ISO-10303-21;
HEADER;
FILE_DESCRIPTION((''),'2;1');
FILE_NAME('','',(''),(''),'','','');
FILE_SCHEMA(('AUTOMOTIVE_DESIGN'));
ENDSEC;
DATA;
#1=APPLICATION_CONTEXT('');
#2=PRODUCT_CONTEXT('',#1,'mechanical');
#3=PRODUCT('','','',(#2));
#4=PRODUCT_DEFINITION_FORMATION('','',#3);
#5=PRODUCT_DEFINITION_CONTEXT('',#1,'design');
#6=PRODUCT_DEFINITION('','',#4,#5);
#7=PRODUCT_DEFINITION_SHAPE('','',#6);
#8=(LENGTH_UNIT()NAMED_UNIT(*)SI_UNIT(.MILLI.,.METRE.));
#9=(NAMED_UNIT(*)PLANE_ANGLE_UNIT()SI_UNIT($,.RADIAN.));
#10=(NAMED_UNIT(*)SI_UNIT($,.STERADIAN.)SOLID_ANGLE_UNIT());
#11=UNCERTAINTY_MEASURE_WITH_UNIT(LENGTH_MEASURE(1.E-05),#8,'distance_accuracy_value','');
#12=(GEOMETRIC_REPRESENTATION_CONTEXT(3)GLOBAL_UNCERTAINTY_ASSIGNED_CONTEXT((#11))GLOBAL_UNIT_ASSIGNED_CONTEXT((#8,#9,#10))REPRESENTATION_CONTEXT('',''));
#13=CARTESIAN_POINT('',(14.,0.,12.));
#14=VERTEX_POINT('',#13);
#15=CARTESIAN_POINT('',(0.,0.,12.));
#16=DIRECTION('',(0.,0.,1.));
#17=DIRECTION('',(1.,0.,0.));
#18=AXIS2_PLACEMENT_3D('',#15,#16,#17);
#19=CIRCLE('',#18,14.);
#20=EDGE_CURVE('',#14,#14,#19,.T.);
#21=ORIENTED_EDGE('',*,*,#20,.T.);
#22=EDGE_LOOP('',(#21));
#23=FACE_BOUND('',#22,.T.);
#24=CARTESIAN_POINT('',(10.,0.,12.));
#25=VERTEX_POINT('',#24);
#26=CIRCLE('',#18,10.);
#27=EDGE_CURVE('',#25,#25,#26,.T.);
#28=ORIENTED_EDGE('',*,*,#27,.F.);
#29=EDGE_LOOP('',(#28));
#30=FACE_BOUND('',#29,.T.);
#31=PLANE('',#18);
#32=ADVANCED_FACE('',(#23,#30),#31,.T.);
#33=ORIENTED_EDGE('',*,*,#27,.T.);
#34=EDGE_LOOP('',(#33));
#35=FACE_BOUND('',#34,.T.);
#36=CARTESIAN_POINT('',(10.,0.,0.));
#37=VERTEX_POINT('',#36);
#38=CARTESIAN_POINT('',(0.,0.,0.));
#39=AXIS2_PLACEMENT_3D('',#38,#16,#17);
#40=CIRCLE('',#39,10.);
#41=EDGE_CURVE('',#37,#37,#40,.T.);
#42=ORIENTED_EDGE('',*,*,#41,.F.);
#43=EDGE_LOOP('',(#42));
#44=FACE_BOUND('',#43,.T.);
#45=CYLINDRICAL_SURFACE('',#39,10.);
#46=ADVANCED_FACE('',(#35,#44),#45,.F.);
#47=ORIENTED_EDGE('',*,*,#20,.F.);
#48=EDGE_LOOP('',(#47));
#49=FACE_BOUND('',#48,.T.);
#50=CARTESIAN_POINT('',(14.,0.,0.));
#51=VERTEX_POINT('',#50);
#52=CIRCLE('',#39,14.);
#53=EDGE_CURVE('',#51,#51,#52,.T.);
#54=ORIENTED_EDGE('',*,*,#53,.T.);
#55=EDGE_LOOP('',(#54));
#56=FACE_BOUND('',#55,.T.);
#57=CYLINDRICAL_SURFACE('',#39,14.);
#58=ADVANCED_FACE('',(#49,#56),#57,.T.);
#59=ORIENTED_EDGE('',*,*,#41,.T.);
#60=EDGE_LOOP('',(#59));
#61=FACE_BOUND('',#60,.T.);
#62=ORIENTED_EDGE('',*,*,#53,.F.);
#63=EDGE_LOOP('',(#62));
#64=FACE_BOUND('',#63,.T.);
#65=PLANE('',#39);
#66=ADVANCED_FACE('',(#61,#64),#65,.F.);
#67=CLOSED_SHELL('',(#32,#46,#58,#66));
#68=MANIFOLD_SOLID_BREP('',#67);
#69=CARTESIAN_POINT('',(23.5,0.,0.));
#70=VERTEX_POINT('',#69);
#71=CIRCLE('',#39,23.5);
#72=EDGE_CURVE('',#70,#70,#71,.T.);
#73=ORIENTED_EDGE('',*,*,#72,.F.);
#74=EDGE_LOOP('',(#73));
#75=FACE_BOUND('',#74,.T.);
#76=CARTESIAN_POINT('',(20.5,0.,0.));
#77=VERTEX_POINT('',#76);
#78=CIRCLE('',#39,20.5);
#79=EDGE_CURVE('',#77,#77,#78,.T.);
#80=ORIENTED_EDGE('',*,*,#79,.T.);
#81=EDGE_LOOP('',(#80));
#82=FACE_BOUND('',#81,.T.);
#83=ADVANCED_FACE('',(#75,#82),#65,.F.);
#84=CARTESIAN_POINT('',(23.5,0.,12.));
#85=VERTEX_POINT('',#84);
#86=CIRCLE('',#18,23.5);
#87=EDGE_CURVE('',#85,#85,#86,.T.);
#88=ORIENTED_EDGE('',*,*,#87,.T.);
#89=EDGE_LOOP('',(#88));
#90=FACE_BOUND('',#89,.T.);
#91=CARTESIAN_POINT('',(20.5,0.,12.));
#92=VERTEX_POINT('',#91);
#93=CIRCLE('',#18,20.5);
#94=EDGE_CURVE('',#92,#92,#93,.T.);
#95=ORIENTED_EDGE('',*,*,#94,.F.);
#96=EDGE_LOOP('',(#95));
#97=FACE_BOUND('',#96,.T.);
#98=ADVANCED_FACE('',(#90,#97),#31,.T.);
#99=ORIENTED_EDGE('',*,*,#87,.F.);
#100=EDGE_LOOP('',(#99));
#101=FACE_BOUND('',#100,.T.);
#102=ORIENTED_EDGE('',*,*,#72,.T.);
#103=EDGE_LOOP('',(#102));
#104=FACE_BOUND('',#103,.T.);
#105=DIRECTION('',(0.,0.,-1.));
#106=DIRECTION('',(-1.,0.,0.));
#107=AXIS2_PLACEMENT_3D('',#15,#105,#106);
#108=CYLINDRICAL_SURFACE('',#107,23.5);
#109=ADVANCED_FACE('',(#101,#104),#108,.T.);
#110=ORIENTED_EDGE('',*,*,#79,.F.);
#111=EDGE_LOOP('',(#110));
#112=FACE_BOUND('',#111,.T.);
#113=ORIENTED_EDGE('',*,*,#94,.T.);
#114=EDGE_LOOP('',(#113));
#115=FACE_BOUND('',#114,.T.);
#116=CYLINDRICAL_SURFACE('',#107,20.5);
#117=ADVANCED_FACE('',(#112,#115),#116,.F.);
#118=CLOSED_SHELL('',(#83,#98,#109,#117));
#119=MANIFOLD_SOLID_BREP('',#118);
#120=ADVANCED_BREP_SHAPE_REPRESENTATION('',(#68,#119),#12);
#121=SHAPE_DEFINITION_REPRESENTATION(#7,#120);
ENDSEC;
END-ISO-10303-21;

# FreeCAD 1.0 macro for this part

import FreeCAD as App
import Part
import Sketcher

doc = App.newDocument("Part")
params = doc.addObject("Spreadsheet::Sheet", "Params")
for row, (alias, value) in enumerate([
    ("sketch1_diameter", "47 mm"),
    ("sketch1_diameter2", "41 mm"),
    ("pad1_length", "12 mm"),
    ("sketch2_diameter", "28 mm"),
    ("sketch2_diameter2", "20 mm"),
    ("pad2_length", "12 mm"),
], start=1):
    params.set(f"A{row}", alias)
    params.set(f"B{row}", "=" + value)
    params.setAlias(f"B{row}", alias)

body = doc.addObject("PartDesign::Body", "Body")

sketch1 = body.newObject("Sketcher::SketchObject", "Sketch")
sketch1.AttachmentSupport = (doc.getObject("XY_Plane"), [""])
sketch1.MapMode = "FlatFace"
sketch1.addGeometry([
    Part.Circle(App.Vector(0, 0, 0), App.Vector(0, 0, 1), 23.5),
    Part.Circle(App.Vector(0, 0, 0), App.Vector(0, 0, 1), 20.5),
], False)
sketch1.addConstraint([
    Sketcher.Constraint("Coincident", 0, 3, -1, 1),
    Sketcher.Constraint("Coincident", 1, 3, -1, 1),
    Sketcher.Constraint("Diameter", 0, 47.0),
    Sketcher.Constraint("Diameter", 1, 41.0),
])
sketch1.setExpression("Constraints[2]", "Params.sketch1_diameter")
sketch1.setExpression("Constraints[3]", "Params.sketch1_diameter2")
pad1 = body.newObject("PartDesign::Pad", "Pad")
pad1.Profile = sketch1
pad1.setExpression("Length", "Params.pad1_length")
body2 = doc.addObject("PartDesign::Body", "Body001")

sketch2 = body2.newObject("Sketcher::SketchObject", "Sketch001")
sketch2.AttachmentSupport = (doc.getObject("XY_Plane001"), [""])
sketch2.MapMode = "FlatFace"
sketch2.AttachmentOffset = App.Placement(App.Vector(0, 0, 12), App.Rotation())
sketch2.addGeometry([
    Part.Circle(App.Vector(0, 0, 0), App.Vector(0, 0, 1), 14),
    Part.Circle(App.Vector(0, 0, 0), App.Vector(0, 0, 1), 10),
], False)
sketch2.addConstraint([
    Sketcher.Constraint("Coincident", 0, 3, -1, 1),
    Sketcher.Constraint("Coincident", 1, 3, -1, 1),
    Sketcher.Constraint("Diameter", 0, 28.0),
    Sketcher.Constraint("Diameter", 1, 20.0),
])
sketch2.setExpression("Constraints[2]", "Params.sketch2_diameter")
sketch2.setExpression("Constraints[3]", "Params.sketch2_diameter2")
pad2 = body2.newObject("PartDesign::Pad", "Pad001")
pad2.Profile = sketch2
pad2.setExpression("Length", "Params.pad2_length")
pad2.Reversed = True

doc.recompute()
